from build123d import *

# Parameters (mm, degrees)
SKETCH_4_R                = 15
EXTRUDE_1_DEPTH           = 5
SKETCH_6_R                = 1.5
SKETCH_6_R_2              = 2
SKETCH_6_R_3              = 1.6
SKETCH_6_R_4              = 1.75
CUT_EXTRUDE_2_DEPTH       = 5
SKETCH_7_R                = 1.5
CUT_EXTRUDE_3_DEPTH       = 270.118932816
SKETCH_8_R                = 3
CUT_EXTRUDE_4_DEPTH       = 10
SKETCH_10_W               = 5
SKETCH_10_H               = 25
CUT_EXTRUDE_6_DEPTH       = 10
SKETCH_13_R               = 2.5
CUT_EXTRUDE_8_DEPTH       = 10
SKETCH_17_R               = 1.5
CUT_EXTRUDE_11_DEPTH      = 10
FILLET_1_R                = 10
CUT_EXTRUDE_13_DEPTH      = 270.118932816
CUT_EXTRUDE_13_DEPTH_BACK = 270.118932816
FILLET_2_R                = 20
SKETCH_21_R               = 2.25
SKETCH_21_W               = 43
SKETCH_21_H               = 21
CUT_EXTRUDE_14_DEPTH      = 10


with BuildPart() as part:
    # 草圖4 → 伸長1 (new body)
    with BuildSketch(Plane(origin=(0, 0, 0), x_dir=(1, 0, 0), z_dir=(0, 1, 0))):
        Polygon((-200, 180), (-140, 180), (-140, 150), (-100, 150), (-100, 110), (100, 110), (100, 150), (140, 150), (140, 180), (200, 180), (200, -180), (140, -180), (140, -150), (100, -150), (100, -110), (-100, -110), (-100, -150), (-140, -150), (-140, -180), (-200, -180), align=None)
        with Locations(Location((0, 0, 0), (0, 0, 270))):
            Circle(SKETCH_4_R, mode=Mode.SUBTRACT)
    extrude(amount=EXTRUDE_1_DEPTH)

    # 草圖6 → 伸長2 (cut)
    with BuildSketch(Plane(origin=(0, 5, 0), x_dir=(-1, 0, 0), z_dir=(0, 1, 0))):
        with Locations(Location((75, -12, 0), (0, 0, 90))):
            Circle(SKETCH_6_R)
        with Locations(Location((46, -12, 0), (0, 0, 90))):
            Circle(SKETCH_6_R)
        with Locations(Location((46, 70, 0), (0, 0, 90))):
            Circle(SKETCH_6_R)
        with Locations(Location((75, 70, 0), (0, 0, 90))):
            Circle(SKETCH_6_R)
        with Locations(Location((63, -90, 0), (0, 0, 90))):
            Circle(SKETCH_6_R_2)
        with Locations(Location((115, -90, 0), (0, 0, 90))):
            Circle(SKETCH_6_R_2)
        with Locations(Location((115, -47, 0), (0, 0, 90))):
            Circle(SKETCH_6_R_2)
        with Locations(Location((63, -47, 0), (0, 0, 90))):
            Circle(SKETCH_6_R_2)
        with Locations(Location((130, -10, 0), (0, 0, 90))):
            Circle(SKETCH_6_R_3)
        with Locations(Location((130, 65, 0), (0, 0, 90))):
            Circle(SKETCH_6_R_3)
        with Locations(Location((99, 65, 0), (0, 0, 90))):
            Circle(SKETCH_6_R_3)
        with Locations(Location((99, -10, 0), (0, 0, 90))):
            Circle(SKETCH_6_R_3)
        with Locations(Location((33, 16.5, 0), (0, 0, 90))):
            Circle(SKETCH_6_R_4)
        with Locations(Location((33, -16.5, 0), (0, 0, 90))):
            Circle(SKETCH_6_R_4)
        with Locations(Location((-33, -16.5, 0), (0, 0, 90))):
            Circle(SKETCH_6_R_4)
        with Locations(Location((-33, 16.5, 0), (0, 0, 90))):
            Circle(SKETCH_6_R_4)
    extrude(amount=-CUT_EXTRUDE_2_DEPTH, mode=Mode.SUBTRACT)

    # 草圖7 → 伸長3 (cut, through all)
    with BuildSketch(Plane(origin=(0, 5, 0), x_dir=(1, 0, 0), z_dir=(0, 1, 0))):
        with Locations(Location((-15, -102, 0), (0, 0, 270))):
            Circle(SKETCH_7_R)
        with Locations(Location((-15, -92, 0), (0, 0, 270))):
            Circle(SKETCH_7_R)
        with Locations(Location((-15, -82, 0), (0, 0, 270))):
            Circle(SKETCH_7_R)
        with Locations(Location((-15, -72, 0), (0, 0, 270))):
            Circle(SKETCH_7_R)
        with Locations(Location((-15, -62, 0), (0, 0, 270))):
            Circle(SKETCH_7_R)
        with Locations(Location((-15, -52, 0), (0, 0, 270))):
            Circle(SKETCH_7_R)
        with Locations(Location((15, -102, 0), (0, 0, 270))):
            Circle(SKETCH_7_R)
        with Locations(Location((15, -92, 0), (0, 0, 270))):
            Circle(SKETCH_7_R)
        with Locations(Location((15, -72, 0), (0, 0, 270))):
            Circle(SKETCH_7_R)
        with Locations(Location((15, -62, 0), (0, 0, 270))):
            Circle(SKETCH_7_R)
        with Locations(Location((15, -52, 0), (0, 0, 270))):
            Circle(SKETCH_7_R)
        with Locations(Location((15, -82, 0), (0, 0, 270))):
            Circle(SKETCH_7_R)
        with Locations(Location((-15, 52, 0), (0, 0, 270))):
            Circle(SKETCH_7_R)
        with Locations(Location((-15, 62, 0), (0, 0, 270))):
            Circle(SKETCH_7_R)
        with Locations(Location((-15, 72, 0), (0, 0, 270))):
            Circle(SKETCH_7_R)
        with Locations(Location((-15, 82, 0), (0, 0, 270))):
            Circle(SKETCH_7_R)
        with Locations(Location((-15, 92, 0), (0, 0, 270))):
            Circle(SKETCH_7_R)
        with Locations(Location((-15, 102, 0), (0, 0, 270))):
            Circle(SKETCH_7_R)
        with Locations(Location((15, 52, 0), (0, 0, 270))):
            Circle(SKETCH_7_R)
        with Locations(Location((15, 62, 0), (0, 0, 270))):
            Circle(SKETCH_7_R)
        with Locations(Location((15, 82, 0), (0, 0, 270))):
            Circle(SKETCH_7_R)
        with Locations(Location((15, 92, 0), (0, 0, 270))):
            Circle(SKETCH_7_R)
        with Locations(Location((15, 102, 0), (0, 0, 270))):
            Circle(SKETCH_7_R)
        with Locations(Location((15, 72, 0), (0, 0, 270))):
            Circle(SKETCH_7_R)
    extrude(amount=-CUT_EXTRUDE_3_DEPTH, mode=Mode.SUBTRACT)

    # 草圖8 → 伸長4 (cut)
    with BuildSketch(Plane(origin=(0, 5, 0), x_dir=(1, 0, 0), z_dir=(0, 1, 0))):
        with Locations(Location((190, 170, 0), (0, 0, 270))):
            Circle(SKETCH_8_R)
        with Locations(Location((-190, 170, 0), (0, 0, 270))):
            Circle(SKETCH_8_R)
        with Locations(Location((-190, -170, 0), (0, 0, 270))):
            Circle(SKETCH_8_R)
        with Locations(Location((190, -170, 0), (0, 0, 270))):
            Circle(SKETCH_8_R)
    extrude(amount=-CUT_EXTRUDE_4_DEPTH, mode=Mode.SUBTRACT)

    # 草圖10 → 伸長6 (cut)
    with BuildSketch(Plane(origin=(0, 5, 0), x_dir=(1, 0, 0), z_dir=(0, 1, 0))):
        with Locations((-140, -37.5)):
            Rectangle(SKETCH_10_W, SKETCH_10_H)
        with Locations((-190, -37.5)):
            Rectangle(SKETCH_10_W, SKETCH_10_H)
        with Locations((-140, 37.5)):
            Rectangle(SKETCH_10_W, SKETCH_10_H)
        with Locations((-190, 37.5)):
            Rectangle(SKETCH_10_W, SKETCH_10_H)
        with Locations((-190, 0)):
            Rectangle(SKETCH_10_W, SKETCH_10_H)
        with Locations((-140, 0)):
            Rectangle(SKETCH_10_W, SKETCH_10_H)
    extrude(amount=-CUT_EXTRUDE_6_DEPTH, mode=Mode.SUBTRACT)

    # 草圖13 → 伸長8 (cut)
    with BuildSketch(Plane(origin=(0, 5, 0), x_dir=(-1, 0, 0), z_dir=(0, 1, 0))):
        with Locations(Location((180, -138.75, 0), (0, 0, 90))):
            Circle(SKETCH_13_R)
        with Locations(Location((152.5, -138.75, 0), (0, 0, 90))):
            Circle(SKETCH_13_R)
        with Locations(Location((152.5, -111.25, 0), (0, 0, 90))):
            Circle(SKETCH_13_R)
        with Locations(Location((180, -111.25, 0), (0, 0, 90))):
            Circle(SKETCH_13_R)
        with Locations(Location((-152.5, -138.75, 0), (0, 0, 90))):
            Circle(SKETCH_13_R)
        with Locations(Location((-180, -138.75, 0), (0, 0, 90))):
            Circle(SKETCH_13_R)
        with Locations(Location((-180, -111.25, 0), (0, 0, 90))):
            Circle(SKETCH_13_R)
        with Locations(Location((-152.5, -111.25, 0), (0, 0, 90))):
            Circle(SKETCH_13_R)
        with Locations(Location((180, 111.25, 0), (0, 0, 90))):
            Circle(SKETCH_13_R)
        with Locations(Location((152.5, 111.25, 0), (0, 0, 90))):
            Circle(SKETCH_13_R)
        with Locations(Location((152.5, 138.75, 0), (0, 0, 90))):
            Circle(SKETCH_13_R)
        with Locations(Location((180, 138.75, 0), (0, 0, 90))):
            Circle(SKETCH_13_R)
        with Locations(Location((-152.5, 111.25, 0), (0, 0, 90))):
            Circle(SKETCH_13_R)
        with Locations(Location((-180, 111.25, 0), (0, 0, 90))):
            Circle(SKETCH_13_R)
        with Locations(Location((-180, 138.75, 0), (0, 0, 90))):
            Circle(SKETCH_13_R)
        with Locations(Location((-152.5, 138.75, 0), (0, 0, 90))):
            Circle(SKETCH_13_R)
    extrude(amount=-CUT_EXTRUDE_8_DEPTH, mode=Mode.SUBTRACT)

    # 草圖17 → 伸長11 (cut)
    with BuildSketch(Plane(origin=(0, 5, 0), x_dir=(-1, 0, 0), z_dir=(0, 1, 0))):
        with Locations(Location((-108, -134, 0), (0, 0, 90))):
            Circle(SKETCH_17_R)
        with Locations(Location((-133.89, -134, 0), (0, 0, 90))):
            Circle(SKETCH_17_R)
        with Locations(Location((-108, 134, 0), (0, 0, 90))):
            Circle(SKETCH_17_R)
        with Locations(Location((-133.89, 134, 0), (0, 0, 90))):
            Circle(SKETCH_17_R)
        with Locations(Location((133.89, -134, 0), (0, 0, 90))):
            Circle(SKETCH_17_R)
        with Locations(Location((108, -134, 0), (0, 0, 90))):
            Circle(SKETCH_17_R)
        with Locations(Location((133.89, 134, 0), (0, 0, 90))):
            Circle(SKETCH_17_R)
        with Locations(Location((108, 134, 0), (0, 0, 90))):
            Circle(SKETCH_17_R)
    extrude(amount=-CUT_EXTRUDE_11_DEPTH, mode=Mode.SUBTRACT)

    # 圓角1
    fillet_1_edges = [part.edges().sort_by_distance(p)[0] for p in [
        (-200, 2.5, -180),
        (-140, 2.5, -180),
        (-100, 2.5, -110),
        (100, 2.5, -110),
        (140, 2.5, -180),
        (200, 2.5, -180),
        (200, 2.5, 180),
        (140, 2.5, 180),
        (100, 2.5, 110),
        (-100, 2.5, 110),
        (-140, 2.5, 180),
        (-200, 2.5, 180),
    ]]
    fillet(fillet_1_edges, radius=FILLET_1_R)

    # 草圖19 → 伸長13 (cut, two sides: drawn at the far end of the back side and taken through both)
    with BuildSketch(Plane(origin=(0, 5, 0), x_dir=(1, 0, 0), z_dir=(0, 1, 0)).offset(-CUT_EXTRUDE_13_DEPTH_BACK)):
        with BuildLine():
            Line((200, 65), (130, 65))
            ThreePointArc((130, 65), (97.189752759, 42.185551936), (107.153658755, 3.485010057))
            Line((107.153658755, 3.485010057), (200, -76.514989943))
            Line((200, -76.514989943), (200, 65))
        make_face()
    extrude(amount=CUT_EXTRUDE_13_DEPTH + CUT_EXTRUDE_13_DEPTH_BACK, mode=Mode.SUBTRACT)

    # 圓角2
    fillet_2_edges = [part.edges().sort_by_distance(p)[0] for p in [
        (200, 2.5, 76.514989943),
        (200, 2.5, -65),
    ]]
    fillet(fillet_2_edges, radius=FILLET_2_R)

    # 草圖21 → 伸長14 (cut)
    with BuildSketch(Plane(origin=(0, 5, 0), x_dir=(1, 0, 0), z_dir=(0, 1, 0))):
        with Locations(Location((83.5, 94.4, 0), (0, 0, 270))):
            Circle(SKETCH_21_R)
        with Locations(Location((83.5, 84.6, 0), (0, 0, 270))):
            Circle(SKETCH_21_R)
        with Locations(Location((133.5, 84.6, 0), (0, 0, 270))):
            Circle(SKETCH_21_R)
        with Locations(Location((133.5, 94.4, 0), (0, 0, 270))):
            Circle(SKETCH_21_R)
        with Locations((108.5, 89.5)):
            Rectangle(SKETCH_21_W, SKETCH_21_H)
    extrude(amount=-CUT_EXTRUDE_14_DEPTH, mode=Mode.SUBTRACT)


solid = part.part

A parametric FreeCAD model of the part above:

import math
import FreeCAD as App
import Part
import Sketcher

V = App.Vector
Q = App.Units.Quantity


def edges_at(feature, points):
    """Names of the edges that pass closest to the given points."""
    edges = feature.Shape.Edges
    near = lambda p: min(range(len(edges)), key=lambda i: edges[i].distToShape(Part.Vertex(*p))[0])
    return sorted({f"Edge{near(p) + 1}" for p in points})

doc = App.newDocument("Part")
body = doc.addObject("PartDesign::Body", "Body")

sketch1 = doc.addObject("Sketcher::SketchObject", "Sketch")
body.addObject(sketch1)
sketch1.AttachmentSupport = (doc.XZ_Plane, [""])
sketch1.MapMode = "FlatFace"
sketch1.addGeometry([
    Part.LineSegment(V(-140, -180, 0), V(-200, -180, 0)),
    Part.LineSegment(V(-200, -180, 0), V(-200, 180, 0)),
    Part.LineSegment(V(-200, 180, 0), V(-140, 180, 0)),
    Part.LineSegment(V(-140, 180, 0), V(-140, 150, 0)),
    Part.LineSegment(V(-140, 150, 0), V(-100, 150, 0)),
    Part.LineSegment(V(-100, 150, 0), V(-100, 110, 0)),
    Part.LineSegment(V(-100, 110, 0), V(100, 110, 0)),
    Part.LineSegment(V(100, 110, 0), V(100, 150, 0)),
    Part.LineSegment(V(100, 150, 0), V(140, 150, 0)),
    Part.LineSegment(V(140, 150, 0), V(140, 180, 0)),
    Part.LineSegment(V(140, 180, 0), V(200, 180, 0)),
    Part.LineSegment(V(200, 180, 0), V(200, -180, 0)),
    Part.LineSegment(V(200, -180, 0), V(140, -180, 0)),
    Part.LineSegment(V(140, -180, 0), V(140, -150, 0)),
    Part.LineSegment(V(140, -150, 0), V(100, -150, 0)),
    Part.LineSegment(V(100, -150, 0), V(100, -110, 0)),
    Part.LineSegment(V(100, -110, 0), V(-100, -110, 0)),
    Part.LineSegment(V(-100, -110, 0), V(-100, -150, 0)),
    Part.LineSegment(V(-100, -150, 0), V(-140, -150, 0)),
    Part.LineSegment(V(-140, -150, 0), V(-140, -180, 0)),
    Part.Circle(V(0, 0, 0), V(0, 0, 1), 15),
], False)
sketch1.addConstraint([
    Sketcher.Constraint("Coincident", 0, 2, 1, 1),
    Sketcher.Constraint("Coincident", 1, 2, 2, 1),
    Sketcher.Constraint("Coincident", 2, 2, 3, 1),
    Sketcher.Constraint("Coincident", 3, 2, 4, 1),
    Sketcher.Constraint("Coincident", 4, 2, 5, 1),
    Sketcher.Constraint("Coincident", 5, 2, 6, 1),
    Sketcher.Constraint("Coincident", 6, 2, 7, 1),
    Sketcher.Constraint("Coincident", 7, 2, 8, 1),
    Sketcher.Constraint("Coincident", 8, 2, 9, 1),
    Sketcher.Constraint("Coincident", 9, 2, 10, 1),
    Sketcher.Constraint("Coincident", 10, 2, 11, 1),
    Sketcher.Constraint("Coincident", 11, 2, 12, 1),
    Sketcher.Constraint("Coincident", 12, 2, 13, 1),
    Sketcher.Constraint("Coincident", 13, 2, 14, 1),
    Sketcher.Constraint("Coincident", 14, 2, 15, 1),
    Sketcher.Constraint("Coincident", 15, 2, 16, 1),
    Sketcher.Constraint("Coincident", 16, 2, 17, 1),
    Sketcher.Constraint("Coincident", 17, 2, 18, 1),
    Sketcher.Constraint("Coincident", 18, 2, 19, 1),
    Sketcher.Constraint("Coincident", 19, 2, 0, 1),
    Sketcher.Constraint("Horizontal", 0),
    Sketcher.Constraint("Vertical", 1),
    Sketcher.Constraint("Horizontal", 2),
    Sketcher.Constraint("Vertical", 3),
    Sketcher.Constraint("Horizontal", 4),
    Sketcher.Constraint("Vertical", 5),
    Sketcher.Constraint("Horizontal", 6),
    Sketcher.Constraint("Vertical", 7),
    Sketcher.Constraint("Horizontal", 8),
    Sketcher.Constraint("Vertical", 9),
    Sketcher.Constraint("Horizontal", 10),
    Sketcher.Constraint("Vertical", 11),
    Sketcher.Constraint("Horizontal", 12),
    Sketcher.Constraint("Vertical", 13),
    Sketcher.Constraint("Horizontal", 14),
    Sketcher.Constraint("Vertical", 15),
    Sketcher.Constraint("Horizontal", 16),
    Sketcher.Constraint("Vertical", 17),
    Sketcher.Constraint("Horizontal", 18),
    Sketcher.Constraint("Vertical", 19),
    Sketcher.Constraint("Coincident", 20, 3, -1, 1),
    Sketcher.Constraint("Symmetric", 0, 2, 10, 2, -1, 1),
    Sketcher.Constraint("Symmetric", 2, 2, 12, 2, -1, 1),
    Sketcher.Constraint("Symmetric", 4, 2, 14, 2, -1, 1),
    Sketcher.Constraint("Symmetric", 6, 2, 16, 2, -1, 1),
    Sketcher.Constraint("Symmetric", 8, 2, 18, 2, -1, 1),
    Sketcher.Constraint("Symmetric", 4, 2, 7, 2, -2),
    Sketcher.Constraint("Symmetric", 2, 2, 9, 2, -2),
    Sketcher.Constraint("Equal", 18, 5),
    Sketcher.Constraint("Diameter", 20, Q("30 mm")),
    Sketcher.Constraint("DistanceX", 0, 2, 0, 1, Q("60 mm")),
    Sketcher.Constraint("DistanceX", 4, 1, 4, 2, Q("40 mm")),
    Sketcher.Constraint("DistanceX", 6, 1, 6, 2, Q("200 mm")),
    Sketcher.Constraint("DistanceY", 1, 1, 1, 2, Q("360 mm")),
    Sketcher.Constraint("DistanceY", 3, 2, 3, 1, Q("30 mm")),
])
pad1 = doc.addObject("PartDesign::Pad", "Pad")
body.addObject(pad1)
pad1.Profile = sketch1
pad1.Length = 5
pad1.Reversed = True

sketch2 = doc.addObject("Sketcher::SketchObject", "Sketch001")
body.addObject(sketch2)
sketch2.AttachmentSupport = (doc.XZ_Plane, [""])
sketch2.MapMode = "FlatFace"
sketch2.AttachmentOffset = App.Placement(V(0, 0, -5), App.Rotation())
sketch2.addGeometry([
    Part.Circle(V(-75, -12, 0), V(0, 0, 1), 1.5),
    Part.Circle(V(-46, -12, 0), V(0, 0, 1), 1.5),
    Part.Circle(V(-46, 70, 0), V(0, 0, 1), 1.5),
    Part.Circle(V(-75, 70, 0), V(0, 0, 1), 1.5),
    Part.Circle(V(-63, -90, 0), V(0, 0, 1), 2),
    Part.Circle(V(-115, -90, 0), V(0, 0, 1), 2),
    Part.Circle(V(-115, -47, 0), V(0, 0, 1), 2),
    Part.Circle(V(-63, -47, 0), V(0, 0, 1), 2),
    Part.Circle(V(-130, -10, 0), V(0, 0, 1), 1.6),
    Part.Circle(V(-130, 65, 0), V(0, 0, 1), 1.6),
    Part.Circle(V(-99, 65, 0), V(0, 0, 1), 1.6),
    Part.Circle(V(-99, -10, 0), V(0, 0, 1), 1.6),
    Part.Circle(V(-33, 16.5, 0), V(0, 0, 1), 1.8),
    Part.Circle(V(-33, -16.5, 0), V(0, 0, 1), 1.8),
    Part.Circle(V(33, -16.5, 0), V(0, 0, 1), 1.8),
    Part.Circle(V(33, 16.5, 0), V(0, 0, 1), 1.8),
], False)
sketch2.addConstraint([
    Sketcher.Constraint("Equal", 0, 1),
    Sketcher.Constraint("Equal", 1, 2),
    Sketcher.Constraint("Equal", 2, 3),
    Sketcher.Constraint("Equal", 4, 5),
    Sketcher.Constraint("Equal", 5, 6),
    Sketcher.Constraint("Equal", 6, 7),
    Sketcher.Constraint("Equal", 8, 9),
    Sketcher.Constraint("Equal", 9, 10),
    Sketcher.Constraint("Equal", 10, 11),
    Sketcher.Constraint("Equal", 12, 13),
    Sketcher.Constraint("Equal", 13, 14),
    Sketcher.Constraint("Equal", 14, 15),
    Sketcher.Constraint("Symmetric", 12, 3, 14, 3, -1, 1),
    Sketcher.Constraint("Symmetric", 13, 3, 15, 3, -1, 1),
    Sketcher.Constraint("Symmetric", 13, 3, 14, 3, -2),
    Sketcher.Constraint("Horizontal", 0, 3, 1, 3),
    Sketcher.Constraint("Horizontal", 2, 3, 3, 3),
    Sketcher.Constraint("Horizontal", 4, 3, 5, 3),
    Sketcher.Constraint("Horizontal", 6, 3, 7, 3),
    Sketcher.Constraint("Horizontal", 9, 3, 10, 3),
    Sketcher.Constraint("Horizontal", 8, 3, 11, 3),
    Sketcher.Constraint("Vertical", 1, 3, 2, 3),
    Sketcher.Constraint("Vertical", 0, 3, 3, 3),
    Sketcher.Constraint("Vertical", 5, 3, 6, 3),
    Sketcher.Constraint("Vertical", 4, 3, 7, 3),
    Sketcher.Constraint("Vertical", 8, 3, 9, 3),
    Sketcher.Constraint("Vertical", 10, 3, 11, 3),
    Sketcher.Constraint("Diameter", 0, Q("3 mm")),
    Sketcher.Constraint("Diameter", 4, Q("4 mm")),
    Sketcher.Constraint("Diameter", 8, Q("3.2 mm")),
    Sketcher.Constraint("Diameter", 12, Q("3.5 mm")),
    Sketcher.Constraint("DistanceX", 0, 3, -1, 1, Q("75 mm")),
    Sketcher.Constraint("DistanceY", 0, 3, -1, 1, Q("12 mm")),
    Sketcher.Constraint("DistanceX", 1, 3, -1, 1, Q("46 mm")),
    Sketcher.Constraint("DistanceY", -1, 1, 2, 3, Q("70 mm")),
    Sketcher.Constraint("DistanceX", 4, 3, -1, 1, Q("63 mm")),
    Sketcher.Constraint("DistanceY", 4, 3, -1, 1, Q("90 mm")),
    Sketcher.Constraint("DistanceX", 5, 3, -1, 1, Q("115 mm")),
    Sketcher.Constraint("DistanceY", 6, 3, -1, 1, Q("47 mm")),
    Sketcher.Constraint("DistanceX", 8, 3, -1, 1, Q("130 mm")),
    Sketcher.Constraint("DistanceY", 8, 3, -1, 1, Q("10 mm")),
    Sketcher.Constraint("DistanceY", -1, 1, 9, 3, Q("65 mm")),
    Sketcher.Constraint("DistanceX", 10, 3, -1, 1, Q("99 mm")),
    Sketcher.Constraint("DistanceX", 12, 3, -1, 1, Q("33 mm")),
    Sketcher.Constraint("DistanceY", 13, 3, 12, 3, Q("33 mm")),
])
pocket1 = doc.addObject("PartDesign::Pocket", "Pocket")
body.addObject(pocket1)
pocket1.Profile = sketch2
pocket1.Length = 5
pocket1.Reversed = True

sketch3 = doc.addObject("Sketcher::SketchObject", "Sketch002")
body.addObject(sketch3)
sketch3.AttachmentSupport = (doc.XZ_Plane, [""])
sketch3.MapMode = "FlatFace"
sketch3.AttachmentOffset = App.Placement(V(0, 0, -5), App.Rotation())
sketch3.addGeometry([
    Part.Circle(V(-15, 102, 0), V(0, 0, 1), 1.5),
    Part.Circle(V(-15, 92, 0), V(0, 0, 1), 1.5),
    Part.Circle(V(-15, 82, 0), V(0, 0, 1), 1.5),
    Part.Circle(V(-15, 72, 0), V(0, 0, 1), 1.5),
    Part.Circle(V(-15, 62, 0), V(0, 0, 1), 1.5),
    Part.Circle(V(-15, 52, 0), V(0, 0, 1), 1.5),
    Part.Circle(V(15, 102, 0), V(0, 0, 1), 1.5),
    Part.Circle(V(15, 92, 0), V(0, 0, 1), 1.5),
    Part.Circle(V(15, 72, 0), V(0, 0, 1), 1.5),
    Part.Circle(V(15, 62, 0), V(0, 0, 1), 1.5),
    Part.Circle(V(15, 52, 0), V(0, 0, 1), 1.5),
    Part.Circle(V(15, 82, 0), V(0, 0, 1), 1.5),
    Part.Circle(V(-15, -52, 0), V(0, 0, 1), 1.5),
    Part.Circle(V(-15, -62, 0), V(0, 0, 1), 1.5),
    Part.Circle(V(-15, -72, 0), V(0, 0, 1), 1.5),
    Part.Circle(V(-15, -82, 0), V(0, 0, 1), 1.5),
    Part.Circle(V(-15, -92, 0), V(0, 0, 1), 1.5),
    Part.Circle(V(-15, -102, 0), V(0, 0, 1), 1.5),
    Part.Circle(V(15, -52, 0), V(0, 0, 1), 1.5),
    Part.Circle(V(15, -62, 0), V(0, 0, 1), 1.5),
    Part.Circle(V(15, -82, 0), V(0, 0, 1), 1.5),
    Part.Circle(V(15, -92, 0), V(0, 0, 1), 1.5),
    Part.Circle(V(15, -102, 0), V(0, 0, 1), 1.5),
    Part.Circle(V(15, -72, 0), V(0, 0, 1), 1.5),
], False)
sketch3.addConstraint([
    Sketcher.Constraint("Equal", 0, 1),
    Sketcher.Constraint("Equal", 1, 2),
    Sketcher.Constraint("Equal", 2, 3),
    Sketcher.Constraint("Equal", 3, 4),
    Sketcher.Constraint("Equal", 4, 5),
    Sketcher.Constraint("Equal", 5, 6),
    Sketcher.Constraint("Equal", 6, 7),
    Sketcher.Constraint("Equal", 7, 8),
    Sketcher.Constraint("Equal", 8, 9),
    Sketcher.Constraint("Equal", 9, 10),
    Sketcher.Constraint("Equal", 10, 11),
    Sketcher.Constraint("Equal", 11, 12),
    Sketcher.Constraint("Equal", 12, 13),
    Sketcher.Constraint("Equal", 13, 14),
    Sketcher.Constraint("Equal", 14, 15),
    Sketcher.Constraint("Equal", 15, 16),
    Sketcher.Constraint("Equal", 16, 17),
    Sketcher.Constraint("Equal", 17, 18),
    Sketcher.Constraint("Equal", 18, 19),
    Sketcher.Constraint("Equal", 19, 20),
    Sketcher.Constraint("Equal", 20, 21),
    Sketcher.Constraint("Equal", 21, 22),
    Sketcher.Constraint("Equal", 22, 23),
    Sketcher.Constraint("Symmetric", 10, 3, 12, 3, -1, 1),
    Sketcher.Constraint("Symmetric", 9, 3, 13, 3, -1, 1),
    Sketcher.Constraint("Symmetric", 8, 3, 14, 3, -1, 1),
    Sketcher.Constraint("Symmetric", 11, 3, 15, 3, -1, 1),
    Sketcher.Constraint("Symmetric", 7, 3, 16, 3, -1, 1),
    Sketcher.Constraint("Symmetric", 6, 3, 17, 3, -1, 1),
    Sketcher.Constraint("Symmetric", 5, 3, 18, 3, -1, 1),
    Sketcher.Constraint("Symmetric", 4, 3, 19, 3, -1, 1),
    Sketcher.Constraint("Symmetric", 2, 3, 20, 3, -1, 1),
    Sketcher.Constraint("Symmetric", 1, 3, 21, 3, -1, 1),
    Sketcher.Constraint("Symmetric", 0, 3, 22, 3, -1, 1),
    Sketcher.Constraint("Symmetric", 3, 3, 23, 3, -1, 1),
    Sketcher.Constraint("Symmetric", 0, 3, 6, 3, -2),
    Sketcher.Constraint("Symmetric", 1, 3, 7, 3, -2),
    Sketcher.Constraint("Symmetric", 3, 3, 8, 3, -2),
    Sketcher.Constraint("Symmetric", 4, 3, 9, 3, -2),
    Sketcher.Constraint("Symmetric", 5, 3, 10, 3, -2),
    Sketcher.Constraint("Symmetric", 2, 3, 11, 3, -2),
    Sketcher.Constraint("Vertical", 0, 3, 1, 3),
    Sketcher.Constraint("Vertical", 1, 3, 2, 3),
    Sketcher.Constraint("Vertical", 2, 3, 3, 3),
    Sketcher.Constraint("Vertical", 3, 3, 4, 3),
    Sketcher.Constraint("Vertical", 4, 3, 5, 3),
    Sketcher.Constraint("Diameter", 0, Q("3 mm")),
    Sketcher.Constraint("DistanceX", 0, 3, -1, 1, Q("15 mm")),
    Sketcher.Constraint("DistanceY", -1, 1, 0, 3, Q("102 mm")),
    Sketcher.Constraint("DistanceY", -1, 1, 1, 3, Q("92 mm")),
    Sketcher.Constraint("DistanceY", -1, 1, 2, 3, Q("82 mm")),
    Sketcher.Constraint("DistanceY", -1, 1, 3, 3, Q("72 mm")),
    Sketcher.Constraint("DistanceY", -1, 1, 4, 3, Q("62 mm")),
    Sketcher.Constraint("DistanceY", -1, 1, 5, 3, Q("52 mm")),
])
pocket2 = doc.addObject("PartDesign::Pocket", "Pocket001")
body.addObject(pocket2)
pocket2.Profile = sketch3
pocket2.Type = "ThroughAll"
pocket2.Reversed = True

sketch4 = doc.addObject("Sketcher::SketchObject", "Sketch003")
body.addObject(sketch4)
sketch4.AttachmentSupport = (doc.XZ_Plane, [""])
sketch4.MapMode = "FlatFace"
sketch4.AttachmentOffset = App.Placement(V(0, 0, -5), App.Rotation())
sketch4.addGeometry([
    Part.Circle(V(190, -170, 0), V(0, 0, 1), 3),
    Part.Circle(V(-190, -170, 0), V(0, 0, 1), 3),
    Part.Circle(V(-190, 170, 0), V(0, 0, 1), 3),
    Part.Circle(V(190, 170, 0), V(0, 0, 1), 3),
], False)
sketch4.addConstraint([
    Sketcher.Constraint("Equal", 0, 1),
    Sketcher.Constraint("Equal", 1, 2),
    Sketcher.Constraint("Equal", 2, 3),
    Sketcher.Constraint("Symmetric", 0, 3, 2, 3, -1, 1),
    Sketcher.Constraint("Symmetric", 1, 3, 3, 3, -1, 1),
    Sketcher.Constraint("Symmetric", 0, 3, 1, 3, -2),
    Sketcher.Constraint("Diameter", 0, Q("6 mm")),
    Sketcher.Constraint("DistanceX", -1, 1, 0, 3, Q("190 mm")),
    Sketcher.Constraint("DistanceY", 0, 3, -1, 1, Q("170 mm")),
])
pocket3 = doc.addObject("PartDesign::Pocket", "Pocket002")
body.addObject(pocket3)
pocket3.Profile = sketch4
pocket3.Length = 10
pocket3.Reversed = True

sketch5 = doc.addObject("Sketcher::SketchObject", "Sketch004")
body.addObject(sketch5)
sketch5.AttachmentSupport = (doc.XZ_Plane, [""])
sketch5.MapMode = "FlatFace"
sketch5.AttachmentOffset = App.Placement(V(0, 0, -5), App.Rotation())
sketch5.addGeometry([
    Part.LineSegment(V(-142, 25, 0), V(-142, 50, 0)),
    Part.LineSegment(V(-142, 50, 0), V(-138, 50, 0)),
    Part.LineSegment(V(-138, 50, 0), V(-138, 25, 0)),
    Part.LineSegment(V(-138, 25, 0), V(-142, 25, 0)),
    Part.LineSegment(V(-192, 25, 0), V(-192, 50, 0)),
    Part.LineSegment(V(-192, 50, 0), V(-188, 50, 0)),
    Part.LineSegment(V(-188, 50, 0), V(-188, 25, 0)),
    Part.LineSegment(V(-188, 25, 0), V(-192, 25, 0)),
    Part.LineSegment(V(-142, -50, 0), V(-142, -25, 0)),
    Part.LineSegment(V(-142, -25, 0), V(-138, -25, 0)),
    Part.LineSegment(V(-138, -25, 0), V(-138, -50, 0)),
    Part.LineSegment(V(-138, -50, 0), V(-142, -50, 0)),
    Part.LineSegment(V(-192, -50, 0), V(-192, -25, 0)),
    Part.LineSegment(V(-192, -25, 0), V(-188, -25, 0)),
    Part.LineSegment(V(-188, -25, 0), V(-188, -50, 0)),
    Part.LineSegment(V(-188, -50, 0), V(-192, -50, 0)),
    Part.LineSegment(V(-192, -12, 0), V(-192, 12, 0)),
    Part.LineSegment(V(-192, 12, 0), V(-188, 12, 0)),
    Part.LineSegment(V(-188, 12, 0), V(-188, -12, 0)),
    Part.LineSegment(V(-188, -12, 0), V(-192, -12, 0)),
    Part.LineSegment(V(-142, -12, 0), V(-142, 12, 0)),
    Part.LineSegment(V(-142, 12, 0), V(-138, 12, 0)),
    Part.LineSegment(V(-138, 12, 0), V(-138, -12, 0)),
    Part.LineSegment(V(-138, -12, 0), V(-142, -12, 0)),
], False)
sketch5.addConstraint([
    Sketcher.Constraint("Coincident", 0, 2, 1, 1),
    Sketcher.Constraint("Coincident", 1, 2, 2, 1),
    Sketcher.Constraint("Coincident", 2, 2, 3, 1),
    Sketcher.Constraint("Coincident", 3, 2, 0, 1),
    Sketcher.Constraint("Coincident", 4, 2, 5, 1),
    Sketcher.Constraint("Coincident", 5, 2, 6, 1),
    Sketcher.Constraint("Coincident", 6, 2, 7, 1),
    Sketcher.Constraint("Coincident", 7, 2, 4, 1),
    Sketcher.Constraint("Coincident", 8, 2, 9, 1),
    Sketcher.Constraint("Coincident", 9, 2, 10, 1),
    Sketcher.Constraint("Coincident", 10, 2, 11, 1),
    Sketcher.Constraint("Coincident", 11, 2, 8, 1),
    Sketcher.Constraint("Coincident", 12, 2, 13, 1),
    Sketcher.Constraint("Coincident", 13, 2, 14, 1),
    Sketcher.Constraint("Coincident", 14, 2, 15, 1),
    Sketcher.Constraint("Coincident", 15, 2, 12, 1),
    Sketcher.Constraint("Coincident", 16, 2, 17, 1),
    Sketcher.Constraint("Coincident", 17, 2, 18, 1),
    Sketcher.Constraint("Coincident", 18, 2, 19, 1),
    Sketcher.Constraint("Coincident", 19, 2, 16, 1),
    Sketcher.Constraint("Coincident", 20, 2, 21, 1),
    Sketcher.Constraint("Coincident", 21, 2, 22, 1),
    Sketcher.Constraint("Coincident", 22, 2, 23, 1),
    Sketcher.Constraint("Coincident", 23, 2, 20, 1),
    Sketcher.Constraint("Vertical", 0),
    Sketcher.Constraint("Horizontal", 1),
    Sketcher.Constraint("Vertical", 2),
    Sketcher.Constraint("Horizontal", 3),
    Sketcher.Constraint("Vertical", 4),
    Sketcher.Constraint("Horizontal", 5),
    Sketcher.Constraint("Vertical", 6),
    Sketcher.Constraint("Horizontal", 7),
    Sketcher.Constraint("Vertical", 8),
    Sketcher.Constraint("Horizontal", 9),
    Sketcher.Constraint("Vertical", 10),
    Sketcher.Constraint("Horizontal", 11),
    Sketcher.Constraint("Vertical", 12),
    Sketcher.Constraint("Horizontal", 13),
    Sketcher.Constraint("Vertical", 14),
    Sketcher.Constraint("Horizontal", 15),
    Sketcher.Constraint("Vertical", 16),
    Sketcher.Constraint("Horizontal", 17),
    Sketcher.Constraint("Vertical", 18),
    Sketcher.Constraint("Horizontal", 19),
    Sketcher.Constraint("Vertical", 20),
    Sketcher.Constraint("Horizontal", 21),
    Sketcher.Constraint("Vertical", 22),
    Sketcher.Constraint("Horizontal", 23),
    Sketcher.Constraint("Symmetric", 3, 2, 8, 2, -1),
    Sketcher.Constraint("Symmetric", 1, 2, 10, 2, -1),
    Sketcher.Constraint("Symmetric", 7, 2, 12, 2, -1),
    Sketcher.Constraint("Symmetric", 5, 2, 14, 2, -1),
    Sketcher.Constraint("Horizontal", 1, 2, 4, 2),
    Sketcher.Constraint("Horizontal", 3, 2, 6, 2),
    Sketcher.Constraint("Horizontal", 17, 2, 20, 2),
    Sketcher.Constraint("Horizontal", 19, 2, 22, 2),
    Sketcher.Constraint("Vertical", 15, 2, 16, 2),
    Sketcher.Constraint("Vertical", 14, 2, 17, 2),
    Sketcher.Constraint("Vertical", 11, 2, 20, 2),
    Sketcher.Constraint("Vertical", 10, 2, 21, 2),
    Sketcher.Constraint("Equal", 3, 5),
    Sketcher.Constraint("Equal", 14, 16),
    Sketcher.Constraint("DistanceX", 1, 1, 1, 2, Q("5 mm")),
    Sketcher.Constraint("DistanceY", 0, 1, 0, 2, Q("25 mm")),
    Sketcher.Constraint("DistanceY", -1, 1, 0, 2, Q("50 mm")),
    Sketcher.Constraint("DistanceX", 4, 2, 0, 2, Q("50 mm")),
    Sketcher.Constraint("DistanceX", 0, 2, -1, 1, Q("142.5 mm")),
    Sketcher.Constraint("DistanceY", -1, 1, 16, 2, Q("12.5 mm")),
])
pocket4 = doc.addObject("PartDesign::Pocket", "Pocket003")
body.addObject(pocket4)
pocket4.Profile = sketch5
pocket4.Length = 10
pocket4.Reversed = True

sketch6 = doc.addObject("Sketcher::SketchObject", "Sketch005")
body.addObject(sketch6)
sketch6.AttachmentSupport = (doc.XZ_Plane, [""])
sketch6.MapMode = "FlatFace"
sketch6.AttachmentOffset = App.Placement(V(0, 0, -5), App.Rotation())
sketch6.addGeometry([
    Part.Circle(V(-180, -138.8, 0), V(0, 0, 1), 2.5),
    Part.Circle(V(-152.5, -138.8, 0), V(0, 0, 1), 2.5),
    Part.Circle(V(-152.5, -111.2, 0), V(0, 0, 1), 2.5),
    Part.Circle(V(-180, -111.2, 0), V(0, 0, 1), 2.5),
    Part.Circle(V(152.5, -138.8, 0), V(0, 0, 1), 2.5),
    Part.Circle(V(180, -138.8, 0), V(0, 0, 1), 2.5),
    Part.Circle(V(180, -111.2, 0), V(0, 0, 1), 2.5),
    Part.Circle(V(152.5, -111.2, 0), V(0, 0, 1), 2.5),
    Part.Circle(V(-180, 111.2, 0), V(0, 0, 1), 2.5),
    Part.Circle(V(-152.5, 111.2, 0), V(0, 0, 1), 2.5),
    Part.Circle(V(-152.5, 138.8, 0), V(0, 0, 1), 2.5),
    Part.Circle(V(-180, 138.8, 0), V(0, 0, 1), 2.5),
    Part.Circle(V(152.5, 111.2, 0), V(0, 0, 1), 2.5),
    Part.Circle(V(180, 111.2, 0), V(0, 0, 1), 2.5),
    Part.Circle(V(180, 138.8, 0), V(0, 0, 1), 2.5),
    Part.Circle(V(152.5, 138.8, 0), V(0, 0, 1), 2.5),
], False)
sketch6.addConstraint([
    Sketcher.Constraint("Equal", 0, 1),
    Sketcher.Constraint("Equal", 1, 2),
    Sketcher.Constraint("Equal", 2, 3),
    Sketcher.Constraint("Equal", 3, 4),
    Sketcher.Constraint("Equal", 4, 5),
    Sketcher.Constraint("Equal", 5, 6),
    Sketcher.Constraint("Equal", 6, 7),
    Sketcher.Constraint("Equal", 7, 8),
    Sketcher.Constraint("Equal", 8, 9),
    Sketcher.Constraint("Equal", 9, 10),
    Sketcher.Constraint("Equal", 10, 11),
    Sketcher.Constraint("Equal", 11, 12),
    Sketcher.Constraint("Equal", 12, 13),
    Sketcher.Constraint("Equal", 13, 14),
    Sketcher.Constraint("Equal", 14, 15),
    Sketcher.Constraint("Symmetric", 6, 3, 8, 3, -1, 1),
    Sketcher.Constraint("Symmetric", 7, 3, 9, 3, -1, 1),
    Sketcher.Constraint("Symmetric", 4, 3, 10, 3, -1, 1),
    Sketcher.Constraint("Symmetric", 5, 3, 11, 3, -1, 1),
    Sketcher.Constraint("Symmetric", 2, 3, 12, 3, -1, 1),
    Sketcher.Constraint("Symmetric", 3, 3, 13, 3, -1, 1),
    Sketcher.Constraint("Symmetric", 0, 3, 14, 3, -1, 1),
    Sketcher.Constraint("Symmetric", 1, 3, 15, 3, -1, 1),
    Sketcher.Constraint("Symmetric", 1, 3, 4, 3, -2),
    Sketcher.Constraint("Symmetric", 0, 3, 5, 3, -2),
    Sketcher.Constraint("Symmetric", 3, 3, 6, 3, -2),
    Sketcher.Constraint("Symmetric", 2, 3, 7, 3, -2),
    Sketcher.Constraint("Horizontal", 0, 3, 1, 3),
    Sketcher.Constraint("Horizontal", 2, 3, 3, 3),
    Sketcher.Constraint("Vertical", 1, 3, 2, 3),
    Sketcher.Constraint("Vertical", 0, 3, 3, 3),
    Sketcher.Constraint("Diameter", 0, Q("5 mm")),
    Sketcher.Constraint("DistanceX", 0, 3, -1, 1, Q("180 mm")),
    Sketcher.Constraint("DistanceX", 1, 3, 4, 3, Q("305 mm")),
    Sketcher.Constraint("DistanceY", 0, 3, 8, 3, Q("250 mm")),
    Sketcher.Constraint("DistanceY", 1, 3, 2, 3, Q("27.5 mm")),
])
pocket5 = doc.addObject("PartDesign::Pocket", "Pocket004")
body.addObject(pocket5)
pocket5.Profile = sketch6
pocket5.Length = 10
pocket5.Reversed = True

sketch7 = doc.addObject("Sketcher::SketchObject", "Sketch006")
body.addObject(sketch7)
sketch7.AttachmentSupport = (doc.XZ_Plane, [""])
sketch7.MapMode = "FlatFace"
sketch7.AttachmentOffset = App.Placement(V(0, 0, -5), App.Rotation())
sketch7.addGeometry([
    Part.Circle(V(108, -134, 0), V(0, 0, 1), 1.5),
    Part.Circle(V(133.9, -134, 0), V(0, 0, 1), 1.5),
    Part.Circle(V(108, 134, 0), V(0, 0, 1), 1.5),
    Part.Circle(V(133.9, 134, 0), V(0, 0, 1), 1.5),
    Part.Circle(V(-133.9, -134, 0), V(0, 0, 1), 1.5),
    Part.Circle(V(-108, -134, 0), V(0, 0, 1), 1.5),
    Part.Circle(V(-133.9, 134, 0), V(0, 0, 1), 1.5),
    Part.Circle(V(-108, 134, 0), V(0, 0, 1), 1.5),
], False)
sketch7.addConstraint([
    Sketcher.Constraint("Equal", 0, 1),
    Sketcher.Constraint("Equal", 1, 2),
    Sketcher.Constraint("Equal", 2, 3),
    Sketcher.Constraint("Equal", 3, 4),
    Sketcher.Constraint("Equal", 4, 5),
    Sketcher.Constraint("Equal", 5, 6),
    Sketcher.Constraint("Equal", 6, 7),
    Sketcher.Constraint("Symmetric", 3, 3, 4, 3, -1, 1),
    Sketcher.Constraint("Symmetric", 2, 3, 5, 3, -1, 1),
    Sketcher.Constraint("Symmetric", 1, 3, 6, 3, -1, 1),
    Sketcher.Constraint("Symmetric", 0, 3, 7, 3, -1, 1),
    Sketcher.Constraint("Symmetric", 1, 3, 4, 3, -2),
    Sketcher.Constraint("Symmetric", 0, 3, 5, 3, -2),
    Sketcher.Constraint("Horizontal", 0, 3, 1, 3),
    Sketcher.Constraint("Diameter", 0, Q("3 mm")),
    Sketcher.Constraint("DistanceX", -1, 1, 0, 3, Q("108 mm")),
    Sketcher.Constraint("DistanceY", 0, 3, -1, 1, Q("134 mm")),
    Sketcher.Constraint("DistanceX", -1, 1, 1, 3, Q("133.89 mm")),
])
pocket6 = doc.addObject("PartDesign::Pocket", "Pocket005")
body.addObject(pocket6)
pocket6.Profile = sketch7
pocket6.Length = 10
pocket6.Reversed = True
doc.recompute()

fillet = doc.addObject("PartDesign::Fillet", "Fillet")
body.addObject(fillet)
fillet.Base = (pocket6, edges_at(pocket6, [
    (-200, 2.5, -180),
    (-140, 2.5, -180),
    (-100, 2.5, -110),
    (100, 2.5, -110),
    (140, 2.5, -180),
    (200, 2.5, -180),
    (200, 2.5, 180),
    (140, 2.5, 180),
    (100, 2.5, 110),
    (-100, 2.5, 110),
    (-140, 2.5, 180),
    (-200, 2.5, 180),
]))
fillet.Radius = 10

sketch8 = doc.addObject("Sketcher::SketchObject", "Sketch007")
body.addObject(sketch8)
sketch8.AttachmentSupport = (doc.XZ_Plane, [""])
sketch8.MapMode = "FlatFace"
sketch8.AttachmentOffset = App.Placement(V(0, 0, -5), App.Rotation())
sketch8.addGeometry([
    Part.LineSegment(V(200, -65, 0), V(130, -65, 0)),
    Part.ArcOfCircle(Part.Circle(V(130, -30, 0), V(0, 0, 1), 35), math.radians(131), math.radians(270)),
    Part.LineSegment(V(107, -3, 0), V(200, 77, 0)),
    Part.LineSegment(V(200, 77, 0), V(200, -65, 0)),
], False)
sketch8.addConstraint([
    Sketcher.Constraint("Tangent", 0, 2, 1, 2),
    Sketcher.Constraint("Tangent", 1, 1, 2, 1),
    Sketcher.Constraint("Coincident", 2, 2, 3, 1),
    Sketcher.Constraint("Coincident", 3, 2, 0, 1),
    Sketcher.Constraint("Horizontal", 0),
    Sketcher.Constraint("Vertical", 3),
    Sketcher.Constraint("Radius", 1, Q("35 mm")),
    Sketcher.Constraint("DistanceX", 0, 2, 0, 1, Q("70 mm")),
    Sketcher.Constraint("DistanceX", -1, 1, 1, 3, Q("130 mm")),
    Sketcher.Constraint("DistanceY", 1, 3, -1, 1, Q("30 mm")),
    Sketcher.Constraint("DistanceY", 1, 1, 2, 2, Q("80 mm")),
])
pocket7 = doc.addObject("PartDesign::Pocket", "Pocket006")
body.addObject(pocket7)
pocket7.Profile = sketch8
pocket7.Type = "ThroughAll"
pocket7.Midplane = True
doc.recompute()

fillet2 = doc.addObject("PartDesign::Fillet", "Fillet001")
body.addObject(fillet2)
fillet2.Base = (pocket7, edges_at(pocket7, [(200, 2.5, 76.515), (200, 2.5, -65)]))
fillet2.Radius = 20

sketch9 = doc.addObject("Sketcher::SketchObject", "Sketch008")
body.addObject(sketch9)
sketch9.AttachmentSupport = (doc.XZ_Plane, [""])
sketch9.MapMode = "FlatFace"
sketch9.AttachmentOffset = App.Placement(V(0, 0, -5), App.Rotation())
sketch9.addGeometry([
    Part.Circle(V(83.5, -94.4, 0), V(0, 0, 1), 2.2),
    Part.Circle(V(83.5, -84.6, 0), V(0, 0, 1), 2.2),
    Part.Circle(V(133.5, -84.6, 0), V(0, 0, 1), 2.2),
    Part.Circle(V(133.5, -94.4, 0), V(0, 0, 1), 2.2),
    Part.LineSegment(V(87, -100, 0), V(87, -79, 0)),
    Part.LineSegment(V(87, -79, 0), V(130, -79, 0)),
    Part.LineSegment(V(130, -79, 0), V(130, -100, 0)),
    Part.LineSegment(V(130, -100, 0), V(87, -100, 0)),
], False)
sketch9.addConstraint([
    Sketcher.Constraint("Coincident", 4, 2, 5, 1),
    Sketcher.Constraint("Coincident", 5, 2, 6, 1),
    Sketcher.Constraint("Coincident", 6, 2, 7, 1),
    Sketcher.Constraint("Coincident", 7, 2, 4, 1),
    Sketcher.Constraint("Vertical", 4),
    Sketcher.Constraint("Horizontal", 5),
    Sketcher.Constraint("Vertical", 6),
    Sketcher.Constraint("Horizontal", 7),
    Sketcher.Constraint("Equal", 0, 1),
    Sketcher.Constraint("Equal", 1, 2),
    Sketcher.Constraint("Equal", 2, 3),
    Sketcher.Constraint("Horizontal", 1, 3, 2, 3),
    Sketcher.Constraint("Horizontal", 0, 3, 3, 3),
    Sketcher.Constraint("Vertical", 0, 3, 1, 3),
    Sketcher.Constraint("Vertical", 2, 3, 3, 3),
    Sketcher.Constraint("Diameter", 0, Q("4.5 mm")),
    Sketcher.Constraint("DistanceX", 5, 1, 5, 2, Q("43 mm")),
    Sketcher.Constraint("DistanceY", 4, 1, 4, 2, Q("21 mm")),
    Sketcher.Constraint("DistanceX", -1, 1, 4, 2, Q("87 mm")),
    Sketcher.Constraint("DistanceY", 4, 2, -1, 1, Q("79 mm")),
    Sketcher.Constraint("DistanceX", 1, 3, 2, 3, Q("50 mm")),
    Sketcher.Constraint("DistanceX", -1, 1, 0, 3, Q("83.5 mm")),
    Sketcher.Constraint("DistanceY", 0, 3, -1, 1, Q("94.4 mm")),
    Sketcher.Constraint("DistanceY", 1, 3, -1, 1, Q("84.6 mm")),
])
pocket8 = doc.addObject("PartDesign::Pocket", "Pocket007")
body.addObject(pocket8)
pocket8.Profile = sketch9
pocket8.Length = 10
pocket8.Reversed = True

doc.recompute()
